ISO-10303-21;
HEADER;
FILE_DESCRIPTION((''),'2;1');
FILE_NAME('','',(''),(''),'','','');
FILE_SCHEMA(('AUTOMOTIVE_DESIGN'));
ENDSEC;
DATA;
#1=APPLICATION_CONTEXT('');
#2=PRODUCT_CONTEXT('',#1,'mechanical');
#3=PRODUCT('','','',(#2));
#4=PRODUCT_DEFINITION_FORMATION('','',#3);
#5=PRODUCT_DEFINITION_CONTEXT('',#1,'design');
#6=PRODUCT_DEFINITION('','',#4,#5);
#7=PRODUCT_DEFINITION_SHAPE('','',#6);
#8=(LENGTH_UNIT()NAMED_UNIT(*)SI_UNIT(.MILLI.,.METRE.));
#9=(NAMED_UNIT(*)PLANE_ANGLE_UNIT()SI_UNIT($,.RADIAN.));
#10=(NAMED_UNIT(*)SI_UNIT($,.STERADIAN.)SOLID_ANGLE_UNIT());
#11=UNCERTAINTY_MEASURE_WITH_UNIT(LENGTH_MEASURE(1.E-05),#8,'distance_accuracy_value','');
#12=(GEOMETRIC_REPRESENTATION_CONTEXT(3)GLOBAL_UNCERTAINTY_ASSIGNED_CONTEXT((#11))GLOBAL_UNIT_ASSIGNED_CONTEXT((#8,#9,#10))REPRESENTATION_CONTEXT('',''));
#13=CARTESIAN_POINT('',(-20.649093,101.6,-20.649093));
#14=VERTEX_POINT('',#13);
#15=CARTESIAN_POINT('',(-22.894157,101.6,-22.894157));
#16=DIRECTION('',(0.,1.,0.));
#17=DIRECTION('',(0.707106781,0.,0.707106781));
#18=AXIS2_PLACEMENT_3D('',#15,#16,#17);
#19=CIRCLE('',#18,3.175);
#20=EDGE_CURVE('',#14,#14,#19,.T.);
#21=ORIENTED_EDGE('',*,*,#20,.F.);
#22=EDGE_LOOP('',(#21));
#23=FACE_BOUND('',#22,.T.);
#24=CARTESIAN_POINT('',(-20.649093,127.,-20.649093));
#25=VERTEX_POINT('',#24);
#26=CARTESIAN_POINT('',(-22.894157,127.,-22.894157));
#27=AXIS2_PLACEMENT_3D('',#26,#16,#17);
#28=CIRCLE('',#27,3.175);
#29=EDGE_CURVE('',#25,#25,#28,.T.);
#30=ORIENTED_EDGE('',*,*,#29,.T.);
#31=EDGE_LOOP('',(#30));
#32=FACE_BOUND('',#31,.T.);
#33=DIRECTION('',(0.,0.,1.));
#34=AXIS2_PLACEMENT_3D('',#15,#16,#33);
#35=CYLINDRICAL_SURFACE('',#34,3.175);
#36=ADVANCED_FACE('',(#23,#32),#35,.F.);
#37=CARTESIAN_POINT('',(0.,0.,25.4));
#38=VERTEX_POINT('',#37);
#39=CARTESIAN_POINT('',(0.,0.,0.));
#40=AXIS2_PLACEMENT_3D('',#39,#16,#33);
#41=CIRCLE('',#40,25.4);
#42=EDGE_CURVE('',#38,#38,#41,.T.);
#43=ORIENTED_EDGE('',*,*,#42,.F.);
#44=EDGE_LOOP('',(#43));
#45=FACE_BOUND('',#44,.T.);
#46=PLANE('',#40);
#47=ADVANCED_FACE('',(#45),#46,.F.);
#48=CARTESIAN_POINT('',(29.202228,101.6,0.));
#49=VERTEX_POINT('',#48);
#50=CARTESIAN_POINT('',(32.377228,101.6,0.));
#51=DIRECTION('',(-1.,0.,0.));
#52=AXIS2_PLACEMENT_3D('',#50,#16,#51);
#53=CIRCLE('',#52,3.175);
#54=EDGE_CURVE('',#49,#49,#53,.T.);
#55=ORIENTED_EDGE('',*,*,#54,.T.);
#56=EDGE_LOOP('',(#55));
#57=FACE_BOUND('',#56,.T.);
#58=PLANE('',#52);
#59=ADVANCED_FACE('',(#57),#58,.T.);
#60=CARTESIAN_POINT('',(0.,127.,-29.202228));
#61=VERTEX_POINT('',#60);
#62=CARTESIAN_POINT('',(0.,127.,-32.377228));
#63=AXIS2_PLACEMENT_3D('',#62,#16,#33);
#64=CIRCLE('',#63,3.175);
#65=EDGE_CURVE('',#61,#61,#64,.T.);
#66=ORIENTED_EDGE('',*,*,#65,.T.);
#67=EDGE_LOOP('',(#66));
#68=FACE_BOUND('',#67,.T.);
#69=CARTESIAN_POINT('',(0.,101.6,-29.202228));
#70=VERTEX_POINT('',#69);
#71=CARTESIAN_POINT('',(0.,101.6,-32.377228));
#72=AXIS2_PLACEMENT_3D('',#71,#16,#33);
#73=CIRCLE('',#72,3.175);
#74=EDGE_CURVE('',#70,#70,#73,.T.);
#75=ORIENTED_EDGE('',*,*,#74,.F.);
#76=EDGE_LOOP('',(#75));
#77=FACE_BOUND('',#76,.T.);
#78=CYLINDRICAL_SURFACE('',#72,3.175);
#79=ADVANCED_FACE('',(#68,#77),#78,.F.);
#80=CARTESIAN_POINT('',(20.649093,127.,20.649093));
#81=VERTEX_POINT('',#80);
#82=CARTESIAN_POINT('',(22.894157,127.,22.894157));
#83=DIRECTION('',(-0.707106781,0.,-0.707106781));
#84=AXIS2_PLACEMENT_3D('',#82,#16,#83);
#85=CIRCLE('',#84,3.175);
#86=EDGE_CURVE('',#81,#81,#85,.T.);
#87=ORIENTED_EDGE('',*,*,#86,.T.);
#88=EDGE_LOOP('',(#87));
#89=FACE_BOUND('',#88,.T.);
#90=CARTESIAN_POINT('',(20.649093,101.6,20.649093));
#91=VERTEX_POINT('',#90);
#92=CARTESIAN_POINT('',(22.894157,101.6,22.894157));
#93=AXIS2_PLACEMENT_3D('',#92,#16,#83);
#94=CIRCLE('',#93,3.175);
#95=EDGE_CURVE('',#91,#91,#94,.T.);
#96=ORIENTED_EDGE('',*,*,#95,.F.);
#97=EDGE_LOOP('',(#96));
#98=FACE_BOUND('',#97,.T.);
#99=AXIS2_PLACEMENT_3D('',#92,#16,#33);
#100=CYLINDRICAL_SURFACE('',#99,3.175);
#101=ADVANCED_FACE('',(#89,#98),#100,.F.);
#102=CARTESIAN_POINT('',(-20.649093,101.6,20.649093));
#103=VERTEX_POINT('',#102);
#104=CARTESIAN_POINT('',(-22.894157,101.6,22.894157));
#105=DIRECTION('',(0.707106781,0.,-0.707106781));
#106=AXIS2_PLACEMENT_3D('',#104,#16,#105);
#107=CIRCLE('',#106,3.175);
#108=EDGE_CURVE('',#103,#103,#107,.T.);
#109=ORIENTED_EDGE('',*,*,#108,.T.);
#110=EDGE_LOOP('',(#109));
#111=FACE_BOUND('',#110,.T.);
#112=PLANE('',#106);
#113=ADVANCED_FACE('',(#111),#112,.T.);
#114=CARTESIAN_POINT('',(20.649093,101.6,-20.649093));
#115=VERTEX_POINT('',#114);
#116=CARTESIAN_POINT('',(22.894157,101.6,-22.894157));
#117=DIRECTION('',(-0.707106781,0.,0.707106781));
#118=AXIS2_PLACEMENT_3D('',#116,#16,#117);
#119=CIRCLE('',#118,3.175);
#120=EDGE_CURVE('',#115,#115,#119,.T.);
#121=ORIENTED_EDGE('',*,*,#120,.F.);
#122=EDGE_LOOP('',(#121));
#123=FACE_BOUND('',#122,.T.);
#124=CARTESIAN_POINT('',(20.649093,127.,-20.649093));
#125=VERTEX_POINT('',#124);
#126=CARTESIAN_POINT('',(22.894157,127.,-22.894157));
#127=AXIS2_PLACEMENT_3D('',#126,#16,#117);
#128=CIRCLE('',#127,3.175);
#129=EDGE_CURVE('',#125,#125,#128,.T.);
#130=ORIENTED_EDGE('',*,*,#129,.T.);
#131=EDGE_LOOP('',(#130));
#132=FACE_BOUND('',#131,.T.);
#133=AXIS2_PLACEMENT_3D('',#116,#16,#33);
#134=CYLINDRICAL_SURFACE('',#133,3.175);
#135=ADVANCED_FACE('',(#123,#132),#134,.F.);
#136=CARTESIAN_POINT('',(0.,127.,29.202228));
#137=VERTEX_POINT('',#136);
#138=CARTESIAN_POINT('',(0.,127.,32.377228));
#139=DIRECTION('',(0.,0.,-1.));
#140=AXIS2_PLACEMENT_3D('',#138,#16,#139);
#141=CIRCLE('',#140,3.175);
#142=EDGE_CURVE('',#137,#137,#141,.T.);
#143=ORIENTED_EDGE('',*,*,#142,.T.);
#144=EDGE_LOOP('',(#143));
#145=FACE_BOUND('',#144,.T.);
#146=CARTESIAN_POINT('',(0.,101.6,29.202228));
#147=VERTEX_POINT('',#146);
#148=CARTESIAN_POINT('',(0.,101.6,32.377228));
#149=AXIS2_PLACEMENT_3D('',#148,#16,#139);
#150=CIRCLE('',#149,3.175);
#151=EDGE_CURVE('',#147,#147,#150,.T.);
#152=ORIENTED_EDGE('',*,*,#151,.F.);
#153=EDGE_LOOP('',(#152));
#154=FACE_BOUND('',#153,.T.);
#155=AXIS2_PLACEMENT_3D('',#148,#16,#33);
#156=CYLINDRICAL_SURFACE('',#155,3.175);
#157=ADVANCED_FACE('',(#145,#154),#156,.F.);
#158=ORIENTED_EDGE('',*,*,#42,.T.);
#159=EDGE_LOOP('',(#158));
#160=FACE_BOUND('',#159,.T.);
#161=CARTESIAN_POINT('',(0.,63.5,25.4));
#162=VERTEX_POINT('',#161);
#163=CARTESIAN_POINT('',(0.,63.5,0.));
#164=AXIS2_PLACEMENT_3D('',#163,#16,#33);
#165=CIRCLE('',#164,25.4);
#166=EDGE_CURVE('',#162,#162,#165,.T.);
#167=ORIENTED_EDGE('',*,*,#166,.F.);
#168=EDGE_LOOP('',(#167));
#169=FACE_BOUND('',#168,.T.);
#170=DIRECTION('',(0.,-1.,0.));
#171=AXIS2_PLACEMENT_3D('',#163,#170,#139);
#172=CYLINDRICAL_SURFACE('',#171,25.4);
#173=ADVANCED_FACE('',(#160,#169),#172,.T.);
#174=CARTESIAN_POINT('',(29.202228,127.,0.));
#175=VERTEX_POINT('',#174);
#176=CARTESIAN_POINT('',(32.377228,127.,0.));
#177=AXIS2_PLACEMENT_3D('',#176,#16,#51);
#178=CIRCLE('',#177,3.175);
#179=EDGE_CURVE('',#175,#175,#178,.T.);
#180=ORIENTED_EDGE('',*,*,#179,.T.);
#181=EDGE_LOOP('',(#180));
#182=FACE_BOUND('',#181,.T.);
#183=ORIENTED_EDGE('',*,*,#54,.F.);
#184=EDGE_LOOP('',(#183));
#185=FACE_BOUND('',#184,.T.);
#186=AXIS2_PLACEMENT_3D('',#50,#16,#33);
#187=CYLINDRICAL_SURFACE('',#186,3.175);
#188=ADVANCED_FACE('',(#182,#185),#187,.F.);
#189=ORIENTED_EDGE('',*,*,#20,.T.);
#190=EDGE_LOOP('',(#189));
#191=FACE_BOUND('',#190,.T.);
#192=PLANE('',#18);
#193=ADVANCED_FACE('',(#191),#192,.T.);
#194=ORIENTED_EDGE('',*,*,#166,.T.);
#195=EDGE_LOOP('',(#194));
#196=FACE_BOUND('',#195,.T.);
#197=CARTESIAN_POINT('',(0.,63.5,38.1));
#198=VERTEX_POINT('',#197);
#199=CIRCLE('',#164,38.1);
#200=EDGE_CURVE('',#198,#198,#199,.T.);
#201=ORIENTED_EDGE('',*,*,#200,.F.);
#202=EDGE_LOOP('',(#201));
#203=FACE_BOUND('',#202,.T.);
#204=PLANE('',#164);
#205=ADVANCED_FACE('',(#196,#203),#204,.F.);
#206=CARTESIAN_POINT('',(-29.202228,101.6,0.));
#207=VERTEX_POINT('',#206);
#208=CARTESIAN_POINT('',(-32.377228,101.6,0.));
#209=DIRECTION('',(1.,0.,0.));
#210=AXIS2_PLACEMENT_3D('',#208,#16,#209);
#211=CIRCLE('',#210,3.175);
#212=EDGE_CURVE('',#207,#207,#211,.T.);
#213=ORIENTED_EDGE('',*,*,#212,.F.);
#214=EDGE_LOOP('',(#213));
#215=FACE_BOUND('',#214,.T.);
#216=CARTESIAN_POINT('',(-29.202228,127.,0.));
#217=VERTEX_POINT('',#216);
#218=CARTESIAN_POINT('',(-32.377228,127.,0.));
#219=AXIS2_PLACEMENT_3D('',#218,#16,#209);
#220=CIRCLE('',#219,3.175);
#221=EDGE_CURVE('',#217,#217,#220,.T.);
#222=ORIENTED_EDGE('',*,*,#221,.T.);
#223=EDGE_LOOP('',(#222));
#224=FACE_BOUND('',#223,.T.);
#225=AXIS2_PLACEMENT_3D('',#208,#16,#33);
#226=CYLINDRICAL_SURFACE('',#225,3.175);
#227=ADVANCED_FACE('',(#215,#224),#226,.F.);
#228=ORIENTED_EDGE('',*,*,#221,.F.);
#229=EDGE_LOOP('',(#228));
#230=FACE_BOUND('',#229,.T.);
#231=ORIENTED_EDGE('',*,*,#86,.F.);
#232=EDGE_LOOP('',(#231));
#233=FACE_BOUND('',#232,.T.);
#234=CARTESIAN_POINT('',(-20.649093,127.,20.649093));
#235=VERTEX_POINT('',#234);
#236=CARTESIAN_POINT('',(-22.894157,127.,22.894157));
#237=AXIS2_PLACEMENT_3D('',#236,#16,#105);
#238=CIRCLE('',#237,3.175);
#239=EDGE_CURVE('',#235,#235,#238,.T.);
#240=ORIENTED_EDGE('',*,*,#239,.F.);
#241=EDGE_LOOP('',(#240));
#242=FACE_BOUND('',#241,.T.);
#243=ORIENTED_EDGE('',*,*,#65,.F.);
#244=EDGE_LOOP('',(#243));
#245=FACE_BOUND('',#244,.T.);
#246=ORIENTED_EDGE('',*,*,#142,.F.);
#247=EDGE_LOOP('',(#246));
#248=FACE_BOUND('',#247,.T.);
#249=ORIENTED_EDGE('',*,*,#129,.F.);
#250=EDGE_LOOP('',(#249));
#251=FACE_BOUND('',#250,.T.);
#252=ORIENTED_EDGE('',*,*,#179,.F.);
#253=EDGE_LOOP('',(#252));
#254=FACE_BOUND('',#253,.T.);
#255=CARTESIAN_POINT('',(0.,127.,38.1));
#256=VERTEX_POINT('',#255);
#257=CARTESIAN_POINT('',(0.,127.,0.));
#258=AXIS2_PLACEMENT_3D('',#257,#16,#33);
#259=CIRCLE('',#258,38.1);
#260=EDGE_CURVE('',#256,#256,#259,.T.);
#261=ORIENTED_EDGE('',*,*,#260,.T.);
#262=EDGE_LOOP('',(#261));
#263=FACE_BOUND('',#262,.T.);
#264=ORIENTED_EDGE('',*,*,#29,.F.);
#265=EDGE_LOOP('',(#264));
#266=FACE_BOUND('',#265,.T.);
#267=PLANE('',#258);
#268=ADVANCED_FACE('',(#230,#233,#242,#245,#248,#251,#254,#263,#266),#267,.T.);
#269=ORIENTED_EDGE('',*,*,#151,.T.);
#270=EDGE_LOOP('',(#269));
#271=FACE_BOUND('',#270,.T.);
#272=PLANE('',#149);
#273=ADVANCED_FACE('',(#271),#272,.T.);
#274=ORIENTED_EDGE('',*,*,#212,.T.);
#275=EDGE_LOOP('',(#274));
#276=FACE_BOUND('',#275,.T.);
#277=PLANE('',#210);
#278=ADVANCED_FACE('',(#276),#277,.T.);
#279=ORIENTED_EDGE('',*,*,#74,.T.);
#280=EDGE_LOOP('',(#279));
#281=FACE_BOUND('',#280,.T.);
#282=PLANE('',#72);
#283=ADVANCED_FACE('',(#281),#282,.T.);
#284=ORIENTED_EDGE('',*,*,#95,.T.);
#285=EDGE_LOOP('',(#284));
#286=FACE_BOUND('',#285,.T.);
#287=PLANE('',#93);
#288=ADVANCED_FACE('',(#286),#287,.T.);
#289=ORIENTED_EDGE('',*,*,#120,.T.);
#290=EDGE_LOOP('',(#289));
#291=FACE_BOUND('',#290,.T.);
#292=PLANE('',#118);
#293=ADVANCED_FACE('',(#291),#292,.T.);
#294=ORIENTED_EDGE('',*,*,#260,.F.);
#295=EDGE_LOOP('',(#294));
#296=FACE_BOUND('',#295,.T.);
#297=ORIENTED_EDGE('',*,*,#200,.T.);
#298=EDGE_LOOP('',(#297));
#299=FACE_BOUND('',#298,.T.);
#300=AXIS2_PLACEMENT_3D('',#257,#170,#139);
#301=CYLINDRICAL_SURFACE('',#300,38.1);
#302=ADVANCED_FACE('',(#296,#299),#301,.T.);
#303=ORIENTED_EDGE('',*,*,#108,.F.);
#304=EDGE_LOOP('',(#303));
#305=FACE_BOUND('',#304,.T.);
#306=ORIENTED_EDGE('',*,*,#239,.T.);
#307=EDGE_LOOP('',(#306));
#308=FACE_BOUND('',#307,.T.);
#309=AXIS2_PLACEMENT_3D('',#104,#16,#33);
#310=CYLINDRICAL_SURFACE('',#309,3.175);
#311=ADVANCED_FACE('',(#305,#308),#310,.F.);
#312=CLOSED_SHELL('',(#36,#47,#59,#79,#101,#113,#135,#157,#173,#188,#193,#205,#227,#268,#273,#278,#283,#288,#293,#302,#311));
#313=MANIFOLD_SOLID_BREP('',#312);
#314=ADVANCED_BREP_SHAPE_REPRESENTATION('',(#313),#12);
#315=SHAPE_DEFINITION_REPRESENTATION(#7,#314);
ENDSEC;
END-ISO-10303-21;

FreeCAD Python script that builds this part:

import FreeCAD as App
import Part
import Sketcher

V = App.Vector
Q = App.Units.Quantity

doc = App.newDocument("Part")
params = doc.addObject("Spreadsheet::Sheet", "Params")
for row, (alias, value) in enumerate([
    ("sketch1_diameter", "2 in"),
    ("pad1_length", "2.5 in"),
    ("sketch2_diameter", "3 in"),
    ("pad2_length", "2.5 in"),
    ("sketch3_diameter", "0.25 in"),
    ("pocket1_length", "1 in"),
], start=1):
    params.set(f"A{row}", alias)
    params.set(f"B{row}", "=" + value)
    params.setAlias(f"B{row}", alias)

body = doc.addObject("PartDesign::Body", "Body")

sketch1 = body.newObject("Sketcher::SketchObject", "Sketch")
sketch1.AttachmentSupport = (doc.getObject("XZ_Plane"), [""])
sketch1.MapMode = "FlatFace"
sketch1.addGeometry(Part.Circle(V(0, 0, 0), V(0, 0, 1), 25), False)
sketch1.addConstraint(Sketcher.Constraint("Coincident", 0, 3, -1, 1))
sketch1.addConstraint(Sketcher.Constraint("Diameter", 0, Q("2 in")))
sketch1.setExpression("Constraints[1]", "Params.sketch1_diameter")
pad1 = body.newObject("PartDesign::Pad", "Pad")
pad1.Profile = sketch1
pad1.setExpression("Length", "Params.pad1_length")
pad1.Reversed = True

sketch2 = body.newObject("Sketcher::SketchObject", "Sketch001")
sketch2.AttachmentSupport = (doc.getObject("XZ_Plane"), [""])
sketch2.MapMode = "FlatFace"
sketch2.AttachmentOffset = App.Placement(V(0, 0, -2.5 * 25.4), App.Rotation())
sketch2.addGeometry(Part.Circle(V(0, 0, 0), V(0, 0, 1), 38), False)
sketch2.addConstraint(Sketcher.Constraint("Coincident", 0, 3, -1, 1))
sketch2.addConstraint(Sketcher.Constraint("Diameter", 0, Q("3 in")))
sketch2.setExpression("Constraints[1]", "Params.sketch2_diameter")
pad2 = body.newObject("PartDesign::Pad", "Pad001")
pad2.Profile = sketch2
pad2.setExpression("Length", "Params.pad2_length")
pad2.Reversed = True

sketch3 = body.newObject("Sketcher::SketchObject", "Sketch002")
sketch3.AttachmentSupport = (doc.getObject("XZ_Plane"), [""])
sketch3.MapMode = "FlatFace"
sketch3.AttachmentOffset = App.Placement(V(0, 0, -5 * 25.4), App.Rotation())
sketch3.addGeometry(Part.Circle(V(0, -32.4, 0), V(0, 0, 1), 3.2), False)
sketch3.addConstraint(Sketcher.Constraint("PointOnObject", 0, 3, -2))
sketch3.addConstraint(Sketcher.Constraint("Diameter", 0, Q("0.25 in")))
sketch3.addConstraint(Sketcher.Constraint("DistanceY", 0, 3, -1, 1, Q("32.377228 mm")))
sketch3.setExpression("Constraints[1]", "Params.sketch3_diameter")
pocket1 = body.newObject("PartDesign::Pocket", "Pocket")
pocket1.Profile = sketch3
pocket1.setExpression("Length", "Params.pocket1_length")
pocket1.Reversed = True
doc.recompute()

polarpattern = body.newObject("PartDesign::PolarPattern", "PolarPattern")
polarpattern.Originals = [pocket1]
polarpattern.Axis = (doc.getObject("Y_Axis"), [""])
polarpattern.Angle = 360
polarpattern.Occurrences = 8
body.Tip = polarpattern

doc.recompute()
